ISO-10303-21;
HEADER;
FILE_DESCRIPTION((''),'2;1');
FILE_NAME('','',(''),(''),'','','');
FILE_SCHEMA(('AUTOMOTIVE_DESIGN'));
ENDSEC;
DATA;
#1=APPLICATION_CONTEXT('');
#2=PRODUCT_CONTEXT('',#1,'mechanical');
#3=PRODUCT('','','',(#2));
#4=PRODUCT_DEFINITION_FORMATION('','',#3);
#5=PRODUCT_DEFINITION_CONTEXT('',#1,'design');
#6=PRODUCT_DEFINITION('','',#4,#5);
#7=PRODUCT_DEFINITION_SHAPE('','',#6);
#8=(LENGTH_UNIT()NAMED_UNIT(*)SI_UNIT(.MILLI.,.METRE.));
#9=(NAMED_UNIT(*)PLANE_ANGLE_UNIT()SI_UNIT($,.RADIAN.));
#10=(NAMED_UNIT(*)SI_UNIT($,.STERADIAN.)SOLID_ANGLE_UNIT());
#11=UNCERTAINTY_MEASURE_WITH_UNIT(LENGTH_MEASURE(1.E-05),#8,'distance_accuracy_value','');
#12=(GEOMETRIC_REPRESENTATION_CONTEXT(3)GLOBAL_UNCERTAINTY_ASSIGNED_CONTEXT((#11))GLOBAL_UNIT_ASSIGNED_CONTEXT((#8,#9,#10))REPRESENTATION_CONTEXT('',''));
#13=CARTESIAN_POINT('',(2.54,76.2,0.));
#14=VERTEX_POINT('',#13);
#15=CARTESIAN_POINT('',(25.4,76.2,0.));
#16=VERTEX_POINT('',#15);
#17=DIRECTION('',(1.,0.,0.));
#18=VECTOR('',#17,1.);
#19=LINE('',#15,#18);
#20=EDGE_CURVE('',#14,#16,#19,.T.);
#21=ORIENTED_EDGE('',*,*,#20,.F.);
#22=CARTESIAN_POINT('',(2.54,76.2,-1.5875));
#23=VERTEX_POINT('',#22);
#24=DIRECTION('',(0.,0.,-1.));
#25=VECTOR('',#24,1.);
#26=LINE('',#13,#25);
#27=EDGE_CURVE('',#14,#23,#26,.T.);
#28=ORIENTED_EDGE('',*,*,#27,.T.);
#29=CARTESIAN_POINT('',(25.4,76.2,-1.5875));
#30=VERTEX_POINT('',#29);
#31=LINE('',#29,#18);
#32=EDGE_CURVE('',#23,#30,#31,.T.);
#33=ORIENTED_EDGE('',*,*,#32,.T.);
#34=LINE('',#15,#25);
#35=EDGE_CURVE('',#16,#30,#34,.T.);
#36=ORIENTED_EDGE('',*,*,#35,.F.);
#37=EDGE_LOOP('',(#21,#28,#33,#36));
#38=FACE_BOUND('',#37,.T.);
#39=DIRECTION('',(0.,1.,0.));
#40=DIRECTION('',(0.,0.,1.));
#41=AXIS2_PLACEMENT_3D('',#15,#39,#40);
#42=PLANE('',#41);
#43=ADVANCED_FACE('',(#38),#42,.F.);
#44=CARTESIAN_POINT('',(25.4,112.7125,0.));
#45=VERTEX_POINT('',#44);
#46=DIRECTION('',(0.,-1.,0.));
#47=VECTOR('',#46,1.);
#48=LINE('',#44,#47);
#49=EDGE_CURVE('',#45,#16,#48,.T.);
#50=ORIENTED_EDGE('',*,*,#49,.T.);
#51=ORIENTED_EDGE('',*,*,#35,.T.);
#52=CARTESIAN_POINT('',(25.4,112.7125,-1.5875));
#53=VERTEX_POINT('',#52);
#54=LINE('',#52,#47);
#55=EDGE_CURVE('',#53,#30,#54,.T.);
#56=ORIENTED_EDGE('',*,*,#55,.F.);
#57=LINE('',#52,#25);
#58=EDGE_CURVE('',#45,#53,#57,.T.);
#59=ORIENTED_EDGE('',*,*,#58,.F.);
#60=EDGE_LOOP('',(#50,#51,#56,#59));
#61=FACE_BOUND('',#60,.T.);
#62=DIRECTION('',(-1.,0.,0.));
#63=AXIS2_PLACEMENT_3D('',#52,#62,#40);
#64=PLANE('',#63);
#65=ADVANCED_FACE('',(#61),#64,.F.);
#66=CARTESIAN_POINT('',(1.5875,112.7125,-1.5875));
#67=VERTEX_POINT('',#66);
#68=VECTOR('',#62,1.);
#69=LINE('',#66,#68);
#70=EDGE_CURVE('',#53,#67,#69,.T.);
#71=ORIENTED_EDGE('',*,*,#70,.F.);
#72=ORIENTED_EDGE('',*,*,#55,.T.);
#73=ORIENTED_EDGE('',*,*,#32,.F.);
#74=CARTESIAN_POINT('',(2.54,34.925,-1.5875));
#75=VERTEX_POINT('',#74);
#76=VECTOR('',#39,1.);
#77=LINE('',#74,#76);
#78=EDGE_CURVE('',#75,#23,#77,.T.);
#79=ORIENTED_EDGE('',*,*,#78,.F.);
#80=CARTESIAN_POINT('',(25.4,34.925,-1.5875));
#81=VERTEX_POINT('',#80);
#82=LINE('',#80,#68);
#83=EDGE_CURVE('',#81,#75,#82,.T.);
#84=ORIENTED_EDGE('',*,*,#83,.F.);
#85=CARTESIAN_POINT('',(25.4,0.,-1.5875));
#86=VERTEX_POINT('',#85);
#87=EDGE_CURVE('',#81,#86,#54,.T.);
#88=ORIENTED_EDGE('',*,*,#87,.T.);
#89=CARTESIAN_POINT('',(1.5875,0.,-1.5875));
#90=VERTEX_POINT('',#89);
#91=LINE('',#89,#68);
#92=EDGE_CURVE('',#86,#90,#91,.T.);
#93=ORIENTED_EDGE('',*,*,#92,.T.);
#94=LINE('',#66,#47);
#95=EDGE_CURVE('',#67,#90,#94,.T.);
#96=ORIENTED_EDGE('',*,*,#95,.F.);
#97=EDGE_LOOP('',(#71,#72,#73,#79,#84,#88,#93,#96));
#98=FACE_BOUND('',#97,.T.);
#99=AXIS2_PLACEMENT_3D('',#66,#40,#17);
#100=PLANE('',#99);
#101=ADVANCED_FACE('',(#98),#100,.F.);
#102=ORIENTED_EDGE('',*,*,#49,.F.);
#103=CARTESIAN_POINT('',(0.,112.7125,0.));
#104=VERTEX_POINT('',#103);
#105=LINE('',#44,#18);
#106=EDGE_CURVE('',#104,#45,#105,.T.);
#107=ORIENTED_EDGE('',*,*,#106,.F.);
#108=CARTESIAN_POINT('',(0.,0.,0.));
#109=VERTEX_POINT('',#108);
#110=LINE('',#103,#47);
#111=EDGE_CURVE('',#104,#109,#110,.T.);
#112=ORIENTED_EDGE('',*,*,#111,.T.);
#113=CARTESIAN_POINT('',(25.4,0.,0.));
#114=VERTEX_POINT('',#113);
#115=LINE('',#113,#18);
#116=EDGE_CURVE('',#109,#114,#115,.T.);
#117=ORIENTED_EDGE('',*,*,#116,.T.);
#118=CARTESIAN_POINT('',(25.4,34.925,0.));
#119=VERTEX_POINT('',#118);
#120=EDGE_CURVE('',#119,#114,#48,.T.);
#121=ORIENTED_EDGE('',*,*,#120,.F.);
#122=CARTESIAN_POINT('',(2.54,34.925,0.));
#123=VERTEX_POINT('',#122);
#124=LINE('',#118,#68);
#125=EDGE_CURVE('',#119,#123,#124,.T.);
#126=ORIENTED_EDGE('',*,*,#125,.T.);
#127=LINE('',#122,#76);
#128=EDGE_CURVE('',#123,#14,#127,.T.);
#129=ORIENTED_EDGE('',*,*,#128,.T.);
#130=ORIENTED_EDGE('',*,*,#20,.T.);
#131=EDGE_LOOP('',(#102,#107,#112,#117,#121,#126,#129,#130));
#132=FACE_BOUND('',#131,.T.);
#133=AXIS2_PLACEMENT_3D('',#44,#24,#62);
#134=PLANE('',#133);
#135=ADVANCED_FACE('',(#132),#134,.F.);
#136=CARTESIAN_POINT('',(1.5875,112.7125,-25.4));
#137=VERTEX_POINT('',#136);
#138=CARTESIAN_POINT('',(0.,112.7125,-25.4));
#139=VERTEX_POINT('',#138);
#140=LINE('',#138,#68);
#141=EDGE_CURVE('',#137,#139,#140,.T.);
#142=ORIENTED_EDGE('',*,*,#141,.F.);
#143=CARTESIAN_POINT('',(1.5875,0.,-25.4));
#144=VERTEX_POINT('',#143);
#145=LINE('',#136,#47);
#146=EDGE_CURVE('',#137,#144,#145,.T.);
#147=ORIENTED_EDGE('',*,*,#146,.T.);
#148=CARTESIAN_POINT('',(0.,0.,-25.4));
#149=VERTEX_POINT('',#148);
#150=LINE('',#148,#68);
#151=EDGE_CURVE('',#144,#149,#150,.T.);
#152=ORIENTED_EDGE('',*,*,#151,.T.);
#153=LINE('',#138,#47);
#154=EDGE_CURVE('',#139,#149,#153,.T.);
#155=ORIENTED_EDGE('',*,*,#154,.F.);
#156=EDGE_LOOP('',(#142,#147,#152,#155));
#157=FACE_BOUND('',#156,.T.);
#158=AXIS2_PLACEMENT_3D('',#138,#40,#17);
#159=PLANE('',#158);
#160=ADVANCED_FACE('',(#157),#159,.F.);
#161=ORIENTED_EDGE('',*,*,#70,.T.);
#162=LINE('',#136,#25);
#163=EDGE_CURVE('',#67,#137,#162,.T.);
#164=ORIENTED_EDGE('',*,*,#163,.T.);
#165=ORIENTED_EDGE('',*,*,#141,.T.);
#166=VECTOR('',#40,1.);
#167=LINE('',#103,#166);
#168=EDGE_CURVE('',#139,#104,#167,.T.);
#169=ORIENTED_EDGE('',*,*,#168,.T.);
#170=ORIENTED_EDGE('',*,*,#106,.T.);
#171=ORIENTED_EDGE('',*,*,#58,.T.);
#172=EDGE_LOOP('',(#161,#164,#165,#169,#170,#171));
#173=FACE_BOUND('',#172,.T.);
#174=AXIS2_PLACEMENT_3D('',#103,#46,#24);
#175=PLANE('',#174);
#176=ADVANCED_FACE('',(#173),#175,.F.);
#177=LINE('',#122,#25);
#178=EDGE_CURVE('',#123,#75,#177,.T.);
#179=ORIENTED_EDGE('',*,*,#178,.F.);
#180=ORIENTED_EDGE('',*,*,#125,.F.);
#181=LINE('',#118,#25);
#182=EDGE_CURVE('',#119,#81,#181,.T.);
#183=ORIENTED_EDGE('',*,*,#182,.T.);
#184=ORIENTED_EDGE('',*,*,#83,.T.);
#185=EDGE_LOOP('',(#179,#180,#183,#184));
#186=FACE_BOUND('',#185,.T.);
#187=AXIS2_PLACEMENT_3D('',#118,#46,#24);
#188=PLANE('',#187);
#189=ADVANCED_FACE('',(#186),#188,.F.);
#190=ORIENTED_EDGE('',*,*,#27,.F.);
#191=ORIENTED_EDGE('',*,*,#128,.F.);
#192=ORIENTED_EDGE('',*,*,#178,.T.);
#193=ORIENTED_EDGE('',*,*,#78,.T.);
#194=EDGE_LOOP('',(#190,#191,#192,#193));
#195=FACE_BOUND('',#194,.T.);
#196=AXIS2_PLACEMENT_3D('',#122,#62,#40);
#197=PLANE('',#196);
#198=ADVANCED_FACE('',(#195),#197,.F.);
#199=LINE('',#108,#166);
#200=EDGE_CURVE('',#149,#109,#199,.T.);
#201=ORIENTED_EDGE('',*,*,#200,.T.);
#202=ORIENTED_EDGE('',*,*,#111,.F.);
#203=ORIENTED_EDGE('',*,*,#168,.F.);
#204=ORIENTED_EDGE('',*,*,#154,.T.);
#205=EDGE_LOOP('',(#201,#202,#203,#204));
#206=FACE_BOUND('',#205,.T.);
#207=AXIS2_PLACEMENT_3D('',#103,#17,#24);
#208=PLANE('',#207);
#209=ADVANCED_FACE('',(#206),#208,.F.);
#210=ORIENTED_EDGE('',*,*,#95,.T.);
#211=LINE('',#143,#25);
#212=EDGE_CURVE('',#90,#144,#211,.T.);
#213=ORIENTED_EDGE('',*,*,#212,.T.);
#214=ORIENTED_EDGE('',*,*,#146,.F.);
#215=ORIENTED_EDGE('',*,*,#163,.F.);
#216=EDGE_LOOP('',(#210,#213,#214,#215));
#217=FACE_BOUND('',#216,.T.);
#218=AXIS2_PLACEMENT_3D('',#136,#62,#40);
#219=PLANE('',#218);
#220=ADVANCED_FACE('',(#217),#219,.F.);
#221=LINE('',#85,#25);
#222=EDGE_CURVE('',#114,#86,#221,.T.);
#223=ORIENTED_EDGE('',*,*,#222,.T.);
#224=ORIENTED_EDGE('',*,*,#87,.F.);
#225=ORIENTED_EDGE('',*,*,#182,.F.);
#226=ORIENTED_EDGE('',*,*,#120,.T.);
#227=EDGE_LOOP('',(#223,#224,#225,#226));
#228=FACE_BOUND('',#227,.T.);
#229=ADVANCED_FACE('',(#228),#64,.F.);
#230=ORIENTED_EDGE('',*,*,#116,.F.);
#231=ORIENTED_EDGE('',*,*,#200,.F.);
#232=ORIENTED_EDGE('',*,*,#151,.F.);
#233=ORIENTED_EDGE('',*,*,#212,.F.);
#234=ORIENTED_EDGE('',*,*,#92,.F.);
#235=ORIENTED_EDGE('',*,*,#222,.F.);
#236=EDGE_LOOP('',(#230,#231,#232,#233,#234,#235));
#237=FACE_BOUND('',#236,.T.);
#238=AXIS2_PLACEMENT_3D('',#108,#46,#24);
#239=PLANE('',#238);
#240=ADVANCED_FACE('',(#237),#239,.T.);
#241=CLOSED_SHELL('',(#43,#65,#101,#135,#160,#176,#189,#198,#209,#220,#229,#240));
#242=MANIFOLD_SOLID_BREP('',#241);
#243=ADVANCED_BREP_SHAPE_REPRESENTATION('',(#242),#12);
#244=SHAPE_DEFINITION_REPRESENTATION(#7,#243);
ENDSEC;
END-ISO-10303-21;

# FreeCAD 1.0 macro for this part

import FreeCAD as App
import Part
import Sketcher
Q = App.Units.Quantity

doc = App.newDocument("Part")
body = doc.addObject("PartDesign::Body", "Body")

sketch1 = body.newObject("Sketcher::SketchObject", "Sketch")
sketch1.AttachmentSupport = (doc.getObject("XZ_Plane"), [""])
sketch1.MapMode = "FlatFace"
sketch1.addGeometry(Part.LineSegment(App.Vector(0, -25.4, 0), App.Vector(0, 0, 0)), False)
sketch1.addGeometry(Part.LineSegment(App.Vector(0, 0, 0), App.Vector(25.4, 0, 0)), False)
sketch1.addGeometry(Part.LineSegment(App.Vector(25.4, 0, 0), App.Vector(25.4, -1.6, 0)), False)
sketch1.addGeometry(Part.LineSegment(App.Vector(25.4, -1.6, 0), App.Vector(1.6, -1.6, 0)), False)
sketch1.addGeometry(Part.LineSegment(App.Vector(1.6, -1.6, 0), App.Vector(1.6, -25.4, 0)), False)
sketch1.addGeometry(Part.LineSegment(App.Vector(1.6, -25.4, 0), App.Vector(0, -25.4, 0)), False)
sketch1.addConstraint(Sketcher.Constraint("Coincident", 0, 2, 1, 1))
sketch1.addConstraint(Sketcher.Constraint("Coincident", 1, 2, 2, 1))
sketch1.addConstraint(Sketcher.Constraint("Coincident", 2, 2, 3, 1))
sketch1.addConstraint(Sketcher.Constraint("Coincident", 3, 2, 4, 1))
sketch1.addConstraint(Sketcher.Constraint("Coincident", 4, 2, 5, 1))
sketch1.addConstraint(Sketcher.Constraint("Coincident", 5, 2, 0, 1))
sketch1.addConstraint(Sketcher.Constraint("Vertical", 0))
sketch1.addConstraint(Sketcher.Constraint("Horizontal", 1))
sketch1.addConstraint(Sketcher.Constraint("Vertical", 2))
sketch1.addConstraint(Sketcher.Constraint("Horizontal", 3))
sketch1.addConstraint(Sketcher.Constraint("Vertical", 4))
sketch1.addConstraint(Sketcher.Constraint("Horizontal", 5))
sketch1.addConstraint(Sketcher.Constraint("Coincident", 0, 2, -1, 1))
sketch1.addConstraint(Sketcher.Constraint("Equal", 1, 0))
sketch1.addConstraint(Sketcher.Constraint("Equal", 5, 2))
sketch1.addConstraint(Sketcher.Constraint("DistanceX", 1, 1, 1, 2, Q("1 in")))
sketch1.addConstraint(Sketcher.Constraint("DistanceX", 3, 2, 3, 1, Q("0.9375 in")))
pad1 = body.newObject("PartDesign::Pad", "Pad")
pad1.Profile = sketch1
pad1.Length = Q("4.4375 in")
pad1.Reversed = True

sketch2 = body.newObject("Sketcher::SketchObject", "Sketch001")
sketch2.AttachmentSupport = (doc.getObject("XY_Plane"), [""])
sketch2.MapMode = "FlatFace"
sketch2.AttachmentOffset = App.Placement(App.Vector(0, 0, -0.0625 * 25.4), App.Rotation())
sketch2.addGeometry(Part.LineSegment(App.Vector(25, 76, 0), App.Vector(25, 35, 0)), False)
sketch2.addGeometry(Part.LineSegment(App.Vector(25, 35, 0), App.Vector(3, 35, 0)), False)
sketch2.addGeometry(Part.LineSegment(App.Vector(3, 35, 0), App.Vector(3, 76, 0)), False)
sketch2.addGeometry(Part.LineSegment(App.Vector(3, 76, 0), App.Vector(25, 76, 0)), False)
sketch2.addConstraint(Sketcher.Constraint("Coincident", 0, 2, 1, 1))
sketch2.addConstraint(Sketcher.Constraint("Coincident", 1, 2, 2, 1))
sketch2.addConstraint(Sketcher.Constraint("Coincident", 2, 2, 3, 1))
sketch2.addConstraint(Sketcher.Constraint("Coincident", 3, 2, 0, 1))
sketch2.addConstraint(Sketcher.Constraint("Vertical", 0))
sketch2.addConstraint(Sketcher.Constraint("Horizontal", 1))
sketch2.addConstraint(Sketcher.Constraint("Vertical", 2))
sketch2.addConstraint(Sketcher.Constraint("Horizontal", 3))
sketch2.addConstraint(Sketcher.Constraint("DistanceX", 1, 2, 1, 1, Q("0.9 in")))
sketch2.addConstraint(Sketcher.Constraint("DistanceX", -1, 1, 0, 2, Q("1 in")))
sketch2.addConstraint(Sketcher.Constraint("DistanceY", -1, 1, 2, 2, Q("3 in")))
sketch2.addConstraint(Sketcher.Constraint("DistanceY", 0, 2, 0, 1, Q("1.625 in")))
pocket1 = body.newObject("PartDesign::Pocket", "Pocket")
pocket1.Profile = sketch2
pocket1.Type = "ThroughAll"
pocket1.Reversed = True

doc.recompute()
